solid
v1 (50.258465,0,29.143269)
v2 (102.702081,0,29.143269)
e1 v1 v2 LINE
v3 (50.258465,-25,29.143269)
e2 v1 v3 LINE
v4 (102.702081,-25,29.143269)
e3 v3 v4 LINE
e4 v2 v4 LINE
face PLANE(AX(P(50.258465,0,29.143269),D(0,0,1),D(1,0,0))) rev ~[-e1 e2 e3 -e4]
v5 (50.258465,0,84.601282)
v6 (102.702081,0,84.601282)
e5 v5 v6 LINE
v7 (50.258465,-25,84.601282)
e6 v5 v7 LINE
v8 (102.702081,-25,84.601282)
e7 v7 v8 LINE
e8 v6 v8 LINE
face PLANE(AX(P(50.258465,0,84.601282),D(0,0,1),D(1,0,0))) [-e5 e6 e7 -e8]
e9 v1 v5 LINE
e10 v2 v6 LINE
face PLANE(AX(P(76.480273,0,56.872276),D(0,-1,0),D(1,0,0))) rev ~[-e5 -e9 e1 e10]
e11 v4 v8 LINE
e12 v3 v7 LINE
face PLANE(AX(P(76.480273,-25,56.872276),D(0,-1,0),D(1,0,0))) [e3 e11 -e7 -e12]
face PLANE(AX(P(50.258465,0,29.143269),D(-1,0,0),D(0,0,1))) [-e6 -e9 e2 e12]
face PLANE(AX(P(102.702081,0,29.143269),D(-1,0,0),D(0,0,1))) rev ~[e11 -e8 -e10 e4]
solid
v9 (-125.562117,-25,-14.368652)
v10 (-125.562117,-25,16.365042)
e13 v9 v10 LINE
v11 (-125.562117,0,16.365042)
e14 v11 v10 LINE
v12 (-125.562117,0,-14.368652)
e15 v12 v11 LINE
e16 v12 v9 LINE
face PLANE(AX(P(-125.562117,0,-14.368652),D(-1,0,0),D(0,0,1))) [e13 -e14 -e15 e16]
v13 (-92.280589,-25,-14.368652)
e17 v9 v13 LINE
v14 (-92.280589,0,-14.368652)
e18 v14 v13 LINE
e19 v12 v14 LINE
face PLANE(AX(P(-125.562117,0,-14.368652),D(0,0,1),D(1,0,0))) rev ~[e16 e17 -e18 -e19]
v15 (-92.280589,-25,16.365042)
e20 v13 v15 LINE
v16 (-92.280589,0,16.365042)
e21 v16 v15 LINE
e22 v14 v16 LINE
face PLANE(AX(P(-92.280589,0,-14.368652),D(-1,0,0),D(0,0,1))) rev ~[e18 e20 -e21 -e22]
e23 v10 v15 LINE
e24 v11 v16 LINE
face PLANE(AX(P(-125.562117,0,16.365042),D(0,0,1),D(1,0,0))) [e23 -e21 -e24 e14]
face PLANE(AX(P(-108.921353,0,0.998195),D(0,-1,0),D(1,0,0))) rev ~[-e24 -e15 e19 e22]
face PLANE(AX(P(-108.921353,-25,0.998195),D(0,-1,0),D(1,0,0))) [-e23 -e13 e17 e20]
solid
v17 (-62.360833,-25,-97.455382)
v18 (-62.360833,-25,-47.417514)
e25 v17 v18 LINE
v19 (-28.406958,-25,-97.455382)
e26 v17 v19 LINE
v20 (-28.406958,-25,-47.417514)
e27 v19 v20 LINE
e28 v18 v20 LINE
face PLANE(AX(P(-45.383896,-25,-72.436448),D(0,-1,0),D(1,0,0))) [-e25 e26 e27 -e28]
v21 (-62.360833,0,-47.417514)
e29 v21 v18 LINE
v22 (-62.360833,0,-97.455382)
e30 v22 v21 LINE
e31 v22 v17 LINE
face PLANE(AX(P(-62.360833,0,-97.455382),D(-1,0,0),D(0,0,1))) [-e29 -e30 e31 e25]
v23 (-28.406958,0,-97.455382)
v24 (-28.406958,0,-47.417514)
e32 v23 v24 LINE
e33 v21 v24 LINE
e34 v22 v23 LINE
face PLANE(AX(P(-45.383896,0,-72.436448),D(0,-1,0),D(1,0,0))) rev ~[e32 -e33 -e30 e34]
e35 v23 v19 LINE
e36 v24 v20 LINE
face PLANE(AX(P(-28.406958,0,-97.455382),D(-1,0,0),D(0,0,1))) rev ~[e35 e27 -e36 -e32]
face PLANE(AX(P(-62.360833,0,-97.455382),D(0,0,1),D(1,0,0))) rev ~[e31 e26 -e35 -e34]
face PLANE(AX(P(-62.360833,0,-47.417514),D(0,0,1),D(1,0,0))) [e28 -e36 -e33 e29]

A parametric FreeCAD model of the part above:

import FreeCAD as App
import Part
import Sketcher
from FreeCAD import Vector
Q = App.Units.Quantity

doc = App.newDocument("Part")
body = doc.addObject("PartDesign::Body", "Body")

sketch1 = body.newObject("Sketcher::SketchObject", "Sketch")
sketch1.AttachmentSupport = (doc.getObject("XZ_Plane"), [""])
sketch1.MapMode = "FlatFace"
sketch1.addGeometry([
    Part.LineSegment(Vector(-126, 16, 0), Vector(-126, -14, 0)),
    Part.LineSegment(Vector(-126, -14, 0), Vector(-92, -14, 0)),
    Part.LineSegment(Vector(-92, -14, 0), Vector(-92, 16, 0)),
    Part.LineSegment(Vector(-92, 16, 0), Vector(-126, 16, 0)),
], False)
sketch1.addConstraint([
    Sketcher.Constraint("Coincident", 0, 2, 1, 1),
    Sketcher.Constraint("Coincident", 1, 2, 2, 1),
    Sketcher.Constraint("Coincident", 2, 2, 3, 1),
    Sketcher.Constraint("Coincident", 3, 2, 0, 1),
    Sketcher.Constraint("Vertical", 0),
    Sketcher.Constraint("Horizontal", 1),
    Sketcher.Constraint("Vertical", 2),
    Sketcher.Constraint("Horizontal", 3),
    Sketcher.Constraint("DistanceX", 1, 1, 1, 2, Q("33.281528 mm")),
    Sketcher.Constraint("DistanceY", 0, 2, 0, 1, Q("30.733693 mm")),
    Sketcher.Constraint("DistanceY", 0, 2, -1, 1, Q("14.368652 mm")),
    Sketcher.Constraint("DistanceX", 1, 2, -1, 1, Q("92.280589 mm")),
])
pad1 = body.newObject("PartDesign::Pad", "Pad")
pad1.Profile = sketch1
pad1.Length = 25
body2 = doc.addObject("PartDesign::Body", "Body001")

sketch2 = body2.newObject("Sketcher::SketchObject", "Sketch001")
sketch2.AttachmentSupport = (doc.getObject("XZ_Plane001"), [""])
sketch2.MapMode = "FlatFace"
sketch2.addGeometry([
    Part.LineSegment(Vector(-62, -47, 0), Vector(-62, -97, 0)),
    Part.LineSegment(Vector(-62, -97, 0), Vector(-28, -97, 0)),
    Part.LineSegment(Vector(-28, -97, 0), Vector(-28, -47, 0)),
    Part.LineSegment(Vector(-28, -47, 0), Vector(-62, -47, 0)),
], False)
sketch2.addConstraint([
    Sketcher.Constraint("Coincident", 0, 2, 1, 1),
    Sketcher.Constraint("Coincident", 1, 2, 2, 1),
    Sketcher.Constraint("Coincident", 2, 2, 3, 1),
    Sketcher.Constraint("Coincident", 3, 2, 0, 1),
    Sketcher.Constraint("Vertical", 0),
    Sketcher.Constraint("Horizontal", 1),
    Sketcher.Constraint("Vertical", 2),
    Sketcher.Constraint("Horizontal", 3),
    Sketcher.Constraint("DistanceY", 0, 2, 0, 1, Q("50.037868 mm")),
    Sketcher.Constraint("DistanceX", 1, 1, 1, 2, Q("33.953875 mm")),
    Sketcher.Constraint("DistanceY", 0, 2, -1, 1, Q("97.455382 mm")),
    Sketcher.Constraint("DistanceX", 1, 2, -1, 1, Q("28.406958 mm")),
])
pad2 = body2.newObject("PartDesign::Pad", "Pad001")
pad2.Profile = sketch2
pad2.Length = 25
body3 = doc.addObject("PartDesign::Body", "Body002")

sketch3 = body3.newObject("Sketcher::SketchObject", "Sketch002")
sketch3.AttachmentSupport = (doc.getObject("XZ_Plane002"), [""])
sketch3.MapMode = "FlatFace"
sketch3.addGeometry([
    Part.LineSegment(Vector(50, 85, 0), Vector(50, 29, 0)),
    Part.LineSegment(Vector(50, 29, 0), Vector(103, 29, 0)),
    Part.LineSegment(Vector(103, 29, 0), Vector(103, 85, 0)),
    Part.LineSegment(Vector(103, 85, 0), Vector(50, 85, 0)),
], False)
sketch3.addConstraint([
    Sketcher.Constraint("Coincident", 0, 2, 1, 1),
    Sketcher.Constraint("Coincident", 1, 2, 2, 1),
    Sketcher.Constraint("Coincident", 2, 2, 3, 1),
    Sketcher.Constraint("Coincident", 3, 2, 0, 1),
    Sketcher.Constraint("Vertical", 0),
    Sketcher.Constraint("Horizontal", 1),
    Sketcher.Constraint("Vertical", 2),
    Sketcher.Constraint("Horizontal", 3),
    Sketcher.Constraint("DistanceX", 1, 1, 1, 2, Q("52.443616 mm")),
    Sketcher.Constraint("DistanceY", 0, 2, 0, 1, Q("55.458013 mm")),
    Sketcher.Constraint("DistanceY", -1, 1, 0, 2, Q("29.143269 mm")),
    Sketcher.Constraint("DistanceX", -1, 1, 1, 2, Q("102.702081 mm")),
])
pad3 = body3.newObject("PartDesign::Pad", "Pad002")
pad3.Profile = sketch3
pad3.Length = 25

doc.recompute()
